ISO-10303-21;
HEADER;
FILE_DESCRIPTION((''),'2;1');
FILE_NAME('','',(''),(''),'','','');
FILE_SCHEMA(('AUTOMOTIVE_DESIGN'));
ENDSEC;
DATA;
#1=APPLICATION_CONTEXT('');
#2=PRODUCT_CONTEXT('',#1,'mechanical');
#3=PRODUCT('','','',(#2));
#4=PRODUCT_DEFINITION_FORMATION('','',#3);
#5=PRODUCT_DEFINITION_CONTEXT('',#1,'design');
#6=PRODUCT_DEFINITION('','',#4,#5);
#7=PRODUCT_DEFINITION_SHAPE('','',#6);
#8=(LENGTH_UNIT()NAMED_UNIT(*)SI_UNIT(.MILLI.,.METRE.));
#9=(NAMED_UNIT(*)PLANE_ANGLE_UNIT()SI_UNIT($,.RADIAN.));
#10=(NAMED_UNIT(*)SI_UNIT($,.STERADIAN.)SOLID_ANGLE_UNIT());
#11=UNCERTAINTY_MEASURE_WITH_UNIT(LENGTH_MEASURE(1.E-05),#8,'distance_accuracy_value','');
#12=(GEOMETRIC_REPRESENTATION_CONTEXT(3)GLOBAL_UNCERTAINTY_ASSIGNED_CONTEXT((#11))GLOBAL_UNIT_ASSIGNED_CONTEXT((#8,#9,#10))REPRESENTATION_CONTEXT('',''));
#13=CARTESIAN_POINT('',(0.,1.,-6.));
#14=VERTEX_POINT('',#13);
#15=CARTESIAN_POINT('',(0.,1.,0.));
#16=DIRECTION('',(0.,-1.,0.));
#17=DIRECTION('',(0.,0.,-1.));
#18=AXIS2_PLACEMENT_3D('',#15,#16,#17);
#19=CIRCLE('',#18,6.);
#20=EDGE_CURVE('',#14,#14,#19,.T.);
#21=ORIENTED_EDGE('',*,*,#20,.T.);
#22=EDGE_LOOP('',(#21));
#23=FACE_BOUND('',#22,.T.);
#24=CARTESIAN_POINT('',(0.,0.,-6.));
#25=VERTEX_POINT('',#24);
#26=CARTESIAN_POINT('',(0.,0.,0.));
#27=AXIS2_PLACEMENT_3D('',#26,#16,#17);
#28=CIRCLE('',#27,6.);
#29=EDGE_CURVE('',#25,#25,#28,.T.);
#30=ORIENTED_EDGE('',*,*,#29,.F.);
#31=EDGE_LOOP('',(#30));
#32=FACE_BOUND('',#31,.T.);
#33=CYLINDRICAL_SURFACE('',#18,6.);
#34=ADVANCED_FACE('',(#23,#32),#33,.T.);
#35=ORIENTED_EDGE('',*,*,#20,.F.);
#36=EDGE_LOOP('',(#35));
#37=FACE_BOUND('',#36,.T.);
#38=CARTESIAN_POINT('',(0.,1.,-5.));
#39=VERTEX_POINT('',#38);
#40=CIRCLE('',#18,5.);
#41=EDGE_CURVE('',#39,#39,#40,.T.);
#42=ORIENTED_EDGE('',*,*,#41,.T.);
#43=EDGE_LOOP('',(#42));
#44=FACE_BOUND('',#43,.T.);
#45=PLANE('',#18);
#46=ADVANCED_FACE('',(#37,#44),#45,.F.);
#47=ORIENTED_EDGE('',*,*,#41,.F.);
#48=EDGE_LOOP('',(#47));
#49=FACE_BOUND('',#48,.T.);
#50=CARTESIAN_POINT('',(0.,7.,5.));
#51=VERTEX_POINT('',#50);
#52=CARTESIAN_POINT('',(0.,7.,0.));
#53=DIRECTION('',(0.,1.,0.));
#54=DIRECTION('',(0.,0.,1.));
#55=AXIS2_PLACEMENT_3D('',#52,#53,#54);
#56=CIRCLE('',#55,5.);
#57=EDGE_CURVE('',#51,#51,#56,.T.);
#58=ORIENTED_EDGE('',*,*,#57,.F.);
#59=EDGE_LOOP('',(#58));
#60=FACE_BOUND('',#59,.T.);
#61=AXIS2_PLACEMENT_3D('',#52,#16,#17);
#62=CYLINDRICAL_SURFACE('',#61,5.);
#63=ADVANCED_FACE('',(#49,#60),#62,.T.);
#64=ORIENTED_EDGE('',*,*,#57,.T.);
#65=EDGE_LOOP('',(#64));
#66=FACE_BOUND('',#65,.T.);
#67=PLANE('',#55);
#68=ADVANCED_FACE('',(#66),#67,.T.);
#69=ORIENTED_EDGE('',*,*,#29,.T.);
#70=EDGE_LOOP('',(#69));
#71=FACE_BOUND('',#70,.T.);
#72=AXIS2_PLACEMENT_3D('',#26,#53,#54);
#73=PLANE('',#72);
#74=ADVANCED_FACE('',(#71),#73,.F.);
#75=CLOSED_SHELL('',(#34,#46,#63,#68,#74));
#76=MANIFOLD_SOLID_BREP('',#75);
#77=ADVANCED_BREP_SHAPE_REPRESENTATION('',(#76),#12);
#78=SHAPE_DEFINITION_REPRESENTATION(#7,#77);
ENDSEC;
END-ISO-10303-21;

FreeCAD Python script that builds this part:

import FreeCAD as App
import Part
import Sketcher

doc = App.newDocument("Part")
body = doc.addObject("PartDesign::Body", "Body")

sketch1 = body.newObject("Sketcher::SketchObject", "Sketch")
sketch1.AttachmentSupport = (doc.getObject("XZ_Plane"), [""])
sketch1.MapMode = "FlatFace"
sketch1.addGeometry(Part.Circle(App.Vector(0, 0, 0), App.Vector(0, 0, 1), 5), False)
sketch1.addConstraint(Sketcher.Constraint("Coincident", 0, 3, -1, 1))
sketch1.addConstraint(Sketcher.Constraint("Diameter", 0, 10.0))
pad1 = body.newObject("PartDesign::Pad", "Pad")
pad1.Profile = sketch1
pad1.Length = 7
pad1.Reversed = True

sketch2 = body.newObject("Sketcher::SketchObject", "Sketch001")
sketch2.AttachmentSupport = (doc.getObject("XZ_Plane"), [""])
sketch2.MapMode = "FlatFace"
sketch2.addGeometry(Part.Circle(App.Vector(0, 0, 0), App.Vector(0, 0, 1), 6), False)
sketch2.addConstraint(Sketcher.Constraint("Coincident", 0, 3, -1, 1))
sketch2.addConstraint(Sketcher.Constraint("Diameter", 0, 12.0))
pad2 = body.newObject("PartDesign::Pad", "Pad001")
pad2.Profile = sketch2
pad2.Length = 1
pad2.Reversed = True

doc.recompute()
